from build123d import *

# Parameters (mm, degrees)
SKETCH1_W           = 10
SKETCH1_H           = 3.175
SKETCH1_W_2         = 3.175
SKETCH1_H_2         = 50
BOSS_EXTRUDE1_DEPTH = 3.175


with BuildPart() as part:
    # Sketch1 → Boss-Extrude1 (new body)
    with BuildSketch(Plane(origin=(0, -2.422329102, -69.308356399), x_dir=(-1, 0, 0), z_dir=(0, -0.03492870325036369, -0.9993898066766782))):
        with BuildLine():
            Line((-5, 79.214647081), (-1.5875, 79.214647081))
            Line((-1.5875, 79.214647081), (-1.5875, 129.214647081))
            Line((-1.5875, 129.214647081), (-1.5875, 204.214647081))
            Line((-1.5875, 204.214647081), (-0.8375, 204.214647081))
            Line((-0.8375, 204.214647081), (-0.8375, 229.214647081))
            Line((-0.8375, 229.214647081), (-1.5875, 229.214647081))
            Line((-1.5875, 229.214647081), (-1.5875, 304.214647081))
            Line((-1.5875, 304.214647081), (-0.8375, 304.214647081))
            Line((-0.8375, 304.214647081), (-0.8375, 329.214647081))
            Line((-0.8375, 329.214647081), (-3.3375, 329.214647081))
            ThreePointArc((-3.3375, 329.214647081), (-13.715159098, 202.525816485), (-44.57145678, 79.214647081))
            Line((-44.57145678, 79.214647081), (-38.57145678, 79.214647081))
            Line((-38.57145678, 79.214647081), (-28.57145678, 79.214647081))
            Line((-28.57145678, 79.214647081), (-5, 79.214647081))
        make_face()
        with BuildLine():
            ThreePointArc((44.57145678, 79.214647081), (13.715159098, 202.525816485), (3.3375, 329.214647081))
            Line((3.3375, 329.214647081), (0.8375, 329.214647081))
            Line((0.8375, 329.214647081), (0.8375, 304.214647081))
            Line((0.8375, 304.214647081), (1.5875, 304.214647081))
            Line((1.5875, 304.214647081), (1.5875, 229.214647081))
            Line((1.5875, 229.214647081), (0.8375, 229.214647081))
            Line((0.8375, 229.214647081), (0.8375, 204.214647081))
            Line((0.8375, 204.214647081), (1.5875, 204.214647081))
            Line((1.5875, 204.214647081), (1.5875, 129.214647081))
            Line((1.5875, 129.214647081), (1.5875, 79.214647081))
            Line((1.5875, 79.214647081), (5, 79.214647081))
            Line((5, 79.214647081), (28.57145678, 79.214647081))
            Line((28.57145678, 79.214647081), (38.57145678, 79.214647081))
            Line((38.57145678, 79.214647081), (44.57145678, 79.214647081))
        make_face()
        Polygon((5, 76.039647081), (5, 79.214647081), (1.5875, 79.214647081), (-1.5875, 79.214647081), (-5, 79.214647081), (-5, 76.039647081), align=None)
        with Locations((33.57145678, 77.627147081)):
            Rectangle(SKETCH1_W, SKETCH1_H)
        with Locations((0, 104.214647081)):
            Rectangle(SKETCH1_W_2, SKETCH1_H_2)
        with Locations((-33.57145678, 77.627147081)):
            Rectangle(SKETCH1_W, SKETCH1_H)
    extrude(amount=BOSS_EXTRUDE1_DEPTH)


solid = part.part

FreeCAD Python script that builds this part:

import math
import FreeCAD as App
import Part
import Sketcher
Q = App.Units.Quantity

doc = App.newDocument("Part")
body = doc.addObject("PartDesign::Body", "Body")

sketch1 = body.newObject("Sketcher::SketchObject", "Sketch")
sketch1.Placement = App.Placement(App.Vector(0, -2.422329, -69.308356), App.Rotation(App.Vector(-1, 0, 0), App.Vector(0, 0.999389807, -0.034928703), App.Vector(0, -0.034928703, -0.999389807), "ZXY"))
sketch1.addGeometry(Part.LineSegment(App.Vector(-1.6, 129.2, 0), App.Vector(-1.6, 204.2, 0)), False)
sketch1.addGeometry(Part.LineSegment(App.Vector(-1.6, 204.2, 0), App.Vector(-0.8, 204.2, 0)), False)
sketch1.addGeometry(Part.LineSegment(App.Vector(-0.8, 204.2, 0), App.Vector(-0.8, 229.2, 0)), False)
sketch1.addGeometry(Part.LineSegment(App.Vector(-0.8, 229.2, 0), App.Vector(-1.6, 229.2, 0)), False)
sketch1.addGeometry(Part.LineSegment(App.Vector(-1.6, 229.2, 0), App.Vector(-1.6, 304.2, 0)), False)
sketch1.addGeometry(Part.LineSegment(App.Vector(-1.6, 304.2, 0), App.Vector(-0.8, 304.2, 0)), False)
sketch1.addGeometry(Part.LineSegment(App.Vector(-0.8, 304.2, 0), App.Vector(-0.8, 329.2, 0)), False)
sketch1.addGeometry(Part.LineSegment(App.Vector(-0.8, 329.2, 0), App.Vector(-3.3, 329.2, 0)), False)
sketch1.addGeometry(Part.ArcOfCircle(Part.Circle(App.Vector(-781.8, 329.2, 0), App.Vector(0, 0, 1), 778.5), math.radians(-18.73), math.radians(0)), False)
sketch1.addGeometry(Part.LineSegment(App.Vector(-44.6, 79.2, 0), App.Vector(-38.6, 79.2, 0)), False)
sketch1.addGeometry(Part.LineSegment(App.Vector(-38.6, 79.2, 0), App.Vector(-38.6, 76, 0)), False)
sketch1.addGeometry(Part.LineSegment(App.Vector(-38.6, 76, 0), App.Vector(-28.6, 76, 0)), False)
sketch1.addGeometry(Part.LineSegment(App.Vector(-28.6, 76, 0), App.Vector(-28.6, 79.2, 0)), False)
sketch1.addGeometry(Part.LineSegment(App.Vector(-28.6, 79.2, 0), App.Vector(-5, 79.2, 0)), False)
sketch1.addGeometry(Part.LineSegment(App.Vector(-5, 79.2, 0), App.Vector(-5, 76, 0)), False)
sketch1.addGeometry(Part.LineSegment(App.Vector(-5, 76, 0), App.Vector(5, 76, 0)), False)
sketch1.addGeometry(Part.LineSegment(App.Vector(5, 76, 0), App.Vector(5, 79.2, 0)), False)
sketch1.addGeometry(Part.LineSegment(App.Vector(5, 79.2, 0), App.Vector(28.6, 79.2, 0)), False)
sketch1.addGeometry(Part.LineSegment(App.Vector(28.6, 79.2, 0), App.Vector(28.6, 76, 0)), False)
sketch1.addGeometry(Part.LineSegment(App.Vector(28.6, 76, 0), App.Vector(38.6, 76, 0)), False)
sketch1.addGeometry(Part.LineSegment(App.Vector(38.6, 76, 0), App.Vector(38.6, 79.2, 0)), False)
sketch1.addGeometry(Part.LineSegment(App.Vector(38.6, 79.2, 0), App.Vector(44.6, 79.2, 0)), False)
sketch1.addGeometry(Part.ArcOfCircle(Part.Circle(App.Vector(781.8, 329.2, 0), App.Vector(0, 0, 1), 778.5), math.radians(-180), math.radians(-161.27)), False)
sketch1.addGeometry(Part.LineSegment(App.Vector(3.3, 329.2, 0), App.Vector(0.8, 329.2, 0)), False)
sketch1.addGeometry(Part.LineSegment(App.Vector(0.8, 329.2, 0), App.Vector(0.8, 304.2, 0)), False)
sketch1.addGeometry(Part.LineSegment(App.Vector(0.8, 304.2, 0), App.Vector(1.6, 304.2, 0)), False)
sketch1.addGeometry(Part.LineSegment(App.Vector(1.6, 304.2, 0), App.Vector(1.6, 229.2, 0)), False)
sketch1.addGeometry(Part.LineSegment(App.Vector(1.6, 229.2, 0), App.Vector(0.8, 229.2, 0)), False)
sketch1.addGeometry(Part.LineSegment(App.Vector(0.8, 229.2, 0), App.Vector(0.8, 204.2, 0)), False)
sketch1.addGeometry(Part.LineSegment(App.Vector(0.8, 204.2, 0), App.Vector(1.6, 204.2, 0)), False)
sketch1.addGeometry(Part.LineSegment(App.Vector(1.6, 204.2, 0), App.Vector(1.6, 129.2, 0)), False)
sketch1.addGeometry(Part.LineSegment(App.Vector(1.6, 129.2, 0), App.Vector(-1.6, 129.2, 0)), False)
sketch1.addConstraint(Sketcher.Constraint("Coincident", 0, 2, 1, 1))
sketch1.addConstraint(Sketcher.Constraint("Coincident", 1, 2, 2, 1))
sketch1.addConstraint(Sketcher.Constraint("Coincident", 2, 2, 3, 1))
sketch1.addConstraint(Sketcher.Constraint("Coincident", 3, 2, 4, 1))
sketch1.addConstraint(Sketcher.Constraint("Coincident", 4, 2, 5, 1))
sketch1.addConstraint(Sketcher.Constraint("Coincident", 5, 2, 6, 1))
sketch1.addConstraint(Sketcher.Constraint("Coincident", 6, 2, 7, 1))
sketch1.addConstraint(Sketcher.Constraint("Coincident", 7, 2, 8, 2))
sketch1.addConstraint(Sketcher.Constraint("Coincident", 8, 1, 9, 1))
sketch1.addConstraint(Sketcher.Constraint("Coincident", 9, 2, 10, 1))
sketch1.addConstraint(Sketcher.Constraint("Coincident", 10, 2, 11, 1))
sketch1.addConstraint(Sketcher.Constraint("Coincident", 11, 2, 12, 1))
sketch1.addConstraint(Sketcher.Constraint("Coincident", 12, 2, 13, 1))
sketch1.addConstraint(Sketcher.Constraint("Coincident", 13, 2, 14, 1))
sketch1.addConstraint(Sketcher.Constraint("Coincident", 14, 2, 15, 1))
sketch1.addConstraint(Sketcher.Constraint("Coincident", 15, 2, 16, 1))
sketch1.addConstraint(Sketcher.Constraint("Coincident", 16, 2, 17, 1))
sketch1.addConstraint(Sketcher.Constraint("Coincident", 17, 2, 18, 1))
sketch1.addConstraint(Sketcher.Constraint("Coincident", 18, 2, 19, 1))
sketch1.addConstraint(Sketcher.Constraint("Coincident", 19, 2, 20, 1))
sketch1.addConstraint(Sketcher.Constraint("Coincident", 20, 2, 21, 1))
sketch1.addConstraint(Sketcher.Constraint("Coincident", 21, 2, 22, 2))
sketch1.addConstraint(Sketcher.Constraint("Coincident", 22, 1, 23, 1))
sketch1.addConstraint(Sketcher.Constraint("Coincident", 23, 2, 24, 1))
sketch1.addConstraint(Sketcher.Constraint("Coincident", 24, 2, 25, 1))
sketch1.addConstraint(Sketcher.Constraint("Coincident", 25, 2, 26, 1))
sketch1.addConstraint(Sketcher.Constraint("Coincident", 26, 2, 27, 1))
sketch1.addConstraint(Sketcher.Constraint("Coincident", 27, 2, 28, 1))
sketch1.addConstraint(Sketcher.Constraint("Coincident", 28, 2, 29, 1))
sketch1.addConstraint(Sketcher.Constraint("Coincident", 29, 2, 30, 1))
sketch1.addConstraint(Sketcher.Constraint("Coincident", 30, 2, 31, 1))
sketch1.addConstraint(Sketcher.Constraint("Coincident", 31, 2, 0, 1))
sketch1.addConstraint(Sketcher.Constraint("Vertical", 0))
sketch1.addConstraint(Sketcher.Constraint("Horizontal", 1))
sketch1.addConstraint(Sketcher.Constraint("Vertical", 2))
sketch1.addConstraint(Sketcher.Constraint("Horizontal", 3))
sketch1.addConstraint(Sketcher.Constraint("Vertical", 4))
sketch1.addConstraint(Sketcher.Constraint("Horizontal", 5))
sketch1.addConstraint(Sketcher.Constraint("Vertical", 6))
sketch1.addConstraint(Sketcher.Constraint("Horizontal", 7))
sketch1.addConstraint(Sketcher.Constraint("Horizontal", 9))
sketch1.addConstraint(Sketcher.Constraint("Vertical", 10))
sketch1.addConstraint(Sketcher.Constraint("Horizontal", 11))
sketch1.addConstraint(Sketcher.Constraint("Vertical", 12))
sketch1.addConstraint(Sketcher.Constraint("Horizontal", 13))
sketch1.addConstraint(Sketcher.Constraint("Vertical", 14))
sketch1.addConstraint(Sketcher.Constraint("Horizontal", 15))
sketch1.addConstraint(Sketcher.Constraint("Vertical", 16))
sketch1.addConstraint(Sketcher.Constraint("Horizontal", 17))
sketch1.addConstraint(Sketcher.Constraint("Vertical", 18))
sketch1.addConstraint(Sketcher.Constraint("Horizontal", 19))
sketch1.addConstraint(Sketcher.Constraint("Vertical", 20))
sketch1.addConstraint(Sketcher.Constraint("Horizontal", 21))
sketch1.addConstraint(Sketcher.Constraint("Horizontal", 23))
sketch1.addConstraint(Sketcher.Constraint("Vertical", 24))
sketch1.addConstraint(Sketcher.Constraint("Horizontal", 25))
sketch1.addConstraint(Sketcher.Constraint("Vertical", 26))
sketch1.addConstraint(Sketcher.Constraint("Horizontal", 27))
sketch1.addConstraint(Sketcher.Constraint("Vertical", 28))
sketch1.addConstraint(Sketcher.Constraint("Horizontal", 29))
sketch1.addConstraint(Sketcher.Constraint("Vertical", 30))
sketch1.addConstraint(Sketcher.Constraint("Horizontal", 31))
sketch1.addConstraint(Sketcher.Constraint("Equal", 8, 22))
sketch1.addConstraint(Sketcher.Constraint("Symmetric", 8, 3, 22, 3, -2))
sketch1.addConstraint(Sketcher.Constraint("Symmetric", 13, 2, 16, 2, -2))
sketch1.addConstraint(Sketcher.Constraint("Symmetric", 11, 2, 18, 2, -2))
sketch1.addConstraint(Sketcher.Constraint("Symmetric", 9, 2, 20, 2, -2))
sketch1.addConstraint(Sketcher.Constraint("Symmetric", 6, 2, 23, 2, -2))
sketch1.addConstraint(Sketcher.Constraint("Symmetric", 4, 2, 25, 2, -2))
sketch1.addConstraint(Sketcher.Constraint("Symmetric", 2, 2, 27, 2, -2))
sketch1.addConstraint(Sketcher.Constraint("Symmetric", 0, 2, 29, 2, -2))
sketch1.addConstraint(Sketcher.Constraint("Horizontal", 22, 3, 6, 2))
sketch1.addConstraint(Sketcher.Constraint("Horizontal", 9, 2, 12, 2))
sketch1.addConstraint(Sketcher.Constraint("Horizontal", 11, 2, 14, 2))
sketch1.addConstraint(Sketcher.Constraint("Vertical", 0, 2, 3, 2))
sketch1.addConstraint(Sketcher.Constraint("Vertical", 2, 2, 5, 2))
sketch1.addConstraint(Sketcher.Constraint("Equal", 11, 15))
sketch1.addConstraint(Sketcher.Constraint("Equal", 0, 4))
sketch1.addConstraint(Sketcher.Constraint("Equal", 2, 6))
sketch1.addConstraint(Sketcher.Constraint("Equal", 31, 10))
sketch1.addConstraint(Sketcher.Constraint("DistanceX", 9, 1, 9, 2, Q("6 mm")))
sketch1.addConstraint(Sketcher.Constraint("DistanceX", 11, 1, 11, 2, Q("10 mm")))
sketch1.addConstraint(Sketcher.Constraint("DistanceY", 0, 1, 0, 2, Q("75 mm")))
sketch1.addConstraint(Sketcher.Constraint("DistanceY", 2, 1, 2, 2, Q("25 mm")))
sketch1.addConstraint(Sketcher.Constraint("DistanceX", 7, 2, 7, 1, Q("2.5 mm")))
sketch1.addConstraint(Sketcher.Constraint("DistanceY", 9, 2, 0, 2, Q("125 mm")))
sketch1.addConstraint(Sketcher.Constraint("DistanceX", 1, 1, 1, 2, Q("0.75 mm")))
sketch1.addConstraint(Sketcher.Constraint("DistanceX", 31, 2, 31, 1, Q("3.175 mm")))
sketch1.addConstraint(Sketcher.Constraint("Radius", 8, Q("778.487492 mm")))
sketch1.addConstraint(Sketcher.Constraint("DistanceY", -1, 1, 8, 3, Q("329.214647 mm")))
pad1 = body.newObject("PartDesign::Pad", "Pad")
pad1.Profile = sketch1
pad1.Length = 3.175

doc.recompute()
